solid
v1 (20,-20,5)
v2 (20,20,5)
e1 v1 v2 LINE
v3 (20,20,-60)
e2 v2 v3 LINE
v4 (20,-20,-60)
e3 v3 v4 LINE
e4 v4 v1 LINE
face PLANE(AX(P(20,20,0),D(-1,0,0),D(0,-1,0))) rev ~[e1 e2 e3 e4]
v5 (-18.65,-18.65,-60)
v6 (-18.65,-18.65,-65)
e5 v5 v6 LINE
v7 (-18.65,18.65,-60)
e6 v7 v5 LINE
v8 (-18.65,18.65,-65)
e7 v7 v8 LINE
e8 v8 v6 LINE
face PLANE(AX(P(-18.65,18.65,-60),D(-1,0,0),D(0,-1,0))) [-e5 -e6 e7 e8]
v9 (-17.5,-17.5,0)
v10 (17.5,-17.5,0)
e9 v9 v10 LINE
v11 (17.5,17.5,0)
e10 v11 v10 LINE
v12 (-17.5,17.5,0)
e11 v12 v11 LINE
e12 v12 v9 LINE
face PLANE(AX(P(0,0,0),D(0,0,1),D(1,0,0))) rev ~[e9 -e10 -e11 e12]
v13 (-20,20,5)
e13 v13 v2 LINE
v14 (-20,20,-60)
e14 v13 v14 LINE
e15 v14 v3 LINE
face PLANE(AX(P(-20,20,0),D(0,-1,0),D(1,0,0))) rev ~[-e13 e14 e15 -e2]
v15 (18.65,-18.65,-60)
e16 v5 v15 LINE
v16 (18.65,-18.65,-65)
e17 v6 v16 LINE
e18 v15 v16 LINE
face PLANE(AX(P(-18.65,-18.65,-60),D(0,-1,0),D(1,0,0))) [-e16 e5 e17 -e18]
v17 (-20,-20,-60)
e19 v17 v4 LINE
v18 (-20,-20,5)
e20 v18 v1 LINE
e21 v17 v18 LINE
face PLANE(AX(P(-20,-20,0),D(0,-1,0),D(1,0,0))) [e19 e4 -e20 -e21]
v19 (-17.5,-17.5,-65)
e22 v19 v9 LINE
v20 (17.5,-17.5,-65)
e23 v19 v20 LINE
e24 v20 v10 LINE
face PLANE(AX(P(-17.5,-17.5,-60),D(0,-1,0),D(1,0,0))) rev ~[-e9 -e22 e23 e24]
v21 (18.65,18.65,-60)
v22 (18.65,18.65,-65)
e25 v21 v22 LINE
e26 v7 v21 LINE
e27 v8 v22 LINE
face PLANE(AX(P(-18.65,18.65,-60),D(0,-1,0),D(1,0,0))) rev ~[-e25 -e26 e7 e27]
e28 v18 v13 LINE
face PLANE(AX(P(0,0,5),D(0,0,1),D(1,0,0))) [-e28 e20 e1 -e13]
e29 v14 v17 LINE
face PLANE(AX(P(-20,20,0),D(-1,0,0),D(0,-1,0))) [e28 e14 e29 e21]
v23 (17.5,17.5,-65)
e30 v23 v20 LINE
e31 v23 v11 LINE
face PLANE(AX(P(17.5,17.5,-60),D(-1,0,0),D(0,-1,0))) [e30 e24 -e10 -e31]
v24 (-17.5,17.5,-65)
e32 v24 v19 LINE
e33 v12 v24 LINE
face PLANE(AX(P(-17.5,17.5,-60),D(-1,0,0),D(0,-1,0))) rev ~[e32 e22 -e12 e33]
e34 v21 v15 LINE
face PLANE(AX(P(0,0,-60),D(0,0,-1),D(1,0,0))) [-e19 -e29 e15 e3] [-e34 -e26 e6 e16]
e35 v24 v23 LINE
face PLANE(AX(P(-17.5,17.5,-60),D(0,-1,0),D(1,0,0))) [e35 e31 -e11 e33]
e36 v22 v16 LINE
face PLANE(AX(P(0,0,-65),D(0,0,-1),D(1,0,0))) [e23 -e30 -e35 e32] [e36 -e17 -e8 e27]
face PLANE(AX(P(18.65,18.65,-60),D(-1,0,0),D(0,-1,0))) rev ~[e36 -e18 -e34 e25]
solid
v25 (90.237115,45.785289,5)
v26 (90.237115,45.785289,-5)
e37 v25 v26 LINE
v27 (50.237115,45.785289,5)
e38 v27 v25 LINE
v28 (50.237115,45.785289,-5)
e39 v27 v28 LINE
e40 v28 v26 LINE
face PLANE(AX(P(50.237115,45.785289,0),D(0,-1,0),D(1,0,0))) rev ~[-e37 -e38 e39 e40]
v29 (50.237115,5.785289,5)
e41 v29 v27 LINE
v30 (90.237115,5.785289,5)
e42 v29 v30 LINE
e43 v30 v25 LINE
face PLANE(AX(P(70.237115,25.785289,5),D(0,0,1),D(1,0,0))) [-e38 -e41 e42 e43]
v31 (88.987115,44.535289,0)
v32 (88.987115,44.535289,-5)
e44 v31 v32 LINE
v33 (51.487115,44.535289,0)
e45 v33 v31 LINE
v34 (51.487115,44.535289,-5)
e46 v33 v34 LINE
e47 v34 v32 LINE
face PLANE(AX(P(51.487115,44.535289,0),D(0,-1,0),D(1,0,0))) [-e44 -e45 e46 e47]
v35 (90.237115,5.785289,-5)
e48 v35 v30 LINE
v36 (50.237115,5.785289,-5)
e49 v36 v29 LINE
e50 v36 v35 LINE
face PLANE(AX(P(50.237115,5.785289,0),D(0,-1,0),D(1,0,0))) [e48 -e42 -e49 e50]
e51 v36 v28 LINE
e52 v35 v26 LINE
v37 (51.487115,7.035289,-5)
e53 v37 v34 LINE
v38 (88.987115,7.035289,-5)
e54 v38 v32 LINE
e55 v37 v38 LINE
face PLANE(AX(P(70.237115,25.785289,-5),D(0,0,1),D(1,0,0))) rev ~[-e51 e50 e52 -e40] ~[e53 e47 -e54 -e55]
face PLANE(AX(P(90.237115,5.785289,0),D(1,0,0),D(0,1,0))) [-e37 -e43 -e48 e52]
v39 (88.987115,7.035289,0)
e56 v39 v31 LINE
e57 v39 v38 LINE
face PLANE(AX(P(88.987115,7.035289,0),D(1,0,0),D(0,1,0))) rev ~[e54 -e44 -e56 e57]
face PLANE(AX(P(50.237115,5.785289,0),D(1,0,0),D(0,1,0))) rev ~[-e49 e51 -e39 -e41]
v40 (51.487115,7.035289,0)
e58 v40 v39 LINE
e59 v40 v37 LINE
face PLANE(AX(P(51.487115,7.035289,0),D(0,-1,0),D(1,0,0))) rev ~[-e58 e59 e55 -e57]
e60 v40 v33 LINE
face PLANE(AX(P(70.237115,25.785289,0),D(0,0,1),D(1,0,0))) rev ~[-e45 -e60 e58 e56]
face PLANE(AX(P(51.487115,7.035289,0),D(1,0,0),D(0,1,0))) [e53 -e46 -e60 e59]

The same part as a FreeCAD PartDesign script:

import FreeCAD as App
import Part
import Sketcher
from FreeCAD import Vector

doc = App.newDocument("Part")
params = doc.addObject("Spreadsheet::Sheet", "Params")
for row, (alias, value) in enumerate([
    ("sketch1_width", "40 mm"),
    ("pad1_length", "5 mm"),
    ("sketch2_width", "40 mm"),
    ("sketch2_width2", "35 mm"),
    ("pad2_length", "60 mm"),
    ("sketch3_width", "35 mm"),
    ("sketch3_width2", "37.3 mm"),
    ("pad3_length", "5 mm"),
    ("sketch4_width", "40 mm"),
    ("pad4_length", "5 mm"),
    ("sketch5_width", "40 mm"),
    ("sketch5_width2", "37.5 mm"),
    ("pad5_length", "5 mm"),
], start=1):
    params.set(f"A{row}", alias)
    params.set(f"B{row}", "=" + value)
    params.setAlias(f"B{row}", alias)

body = doc.addObject("PartDesign::Body", "Body")

sketch1 = body.newObject("Sketcher::SketchObject", "Sketch")
sketch1.AttachmentSupport = (doc.getObject("XY_Plane"), [""])
sketch1.MapMode = "FlatFace"
sketch1.addGeometry([
    Part.LineSegment(Vector(-20, 20, 0), Vector(-20, -20, 0)),
    Part.LineSegment(Vector(-20, -20, 0), Vector(20, -20, 0)),
    Part.LineSegment(Vector(20, -20, 0), Vector(20, 20, 0)),
    Part.LineSegment(Vector(20, 20, 0), Vector(-20, 20, 0)),
], False)
sketch1.addConstraint([
    Sketcher.Constraint("Coincident", 0, 2, 1, 1),
    Sketcher.Constraint("Coincident", 1, 2, 2, 1),
    Sketcher.Constraint("Coincident", 2, 2, 3, 1),
    Sketcher.Constraint("Coincident", 3, 2, 0, 1),
    Sketcher.Constraint("Vertical", 0),
    Sketcher.Constraint("Horizontal", 1),
    Sketcher.Constraint("Vertical", 2),
    Sketcher.Constraint("Horizontal", 3),
    Sketcher.Constraint("Symmetric", 0, 2, 2, 2, -1, 1),
    Sketcher.Constraint("Equal", 3, 0),
    Sketcher.Constraint("DistanceX", 1, 1, 1, 2, 40.0),
])
sketch1.setExpression("Constraints[10]", "Params.sketch1_width")
pad1 = body.newObject("PartDesign::Pad", "Pad")
pad1.Profile = sketch1
pad1.setExpression("Length", "Params.pad1_length")

sketch2 = body.newObject("Sketcher::SketchObject", "Sketch001")
sketch2.AttachmentSupport = (doc.getObject("XY_Plane"), [""])
sketch2.MapMode = "FlatFace"
sketch2.addGeometry([
    Part.LineSegment(Vector(-20, -20, 0), Vector(-20, 20, 0)),
    Part.LineSegment(Vector(-20, 20, 0), Vector(20, 20, 0)),
    Part.LineSegment(Vector(20, 20, 0), Vector(20, -20, 0)),
    Part.LineSegment(Vector(20, -20, 0), Vector(-20, -20, 0)),
    Part.LineSegment(Vector(17.5, 17.5, 0), Vector(-17.5, 17.5, 0)),
    Part.LineSegment(Vector(-17.5, 17.5, 0), Vector(-17.5, -17.5, 0)),
    Part.LineSegment(Vector(-17.5, -17.5, 0), Vector(17.5, -17.5, 0)),
    Part.LineSegment(Vector(17.5, -17.5, 0), Vector(17.5, 17.5, 0)),
], False)
sketch2.addConstraint([
    Sketcher.Constraint("Coincident", 0, 2, 1, 1),
    Sketcher.Constraint("Coincident", 1, 2, 2, 1),
    Sketcher.Constraint("Coincident", 2, 2, 3, 1),
    Sketcher.Constraint("Coincident", 3, 2, 0, 1),
    Sketcher.Constraint("Coincident", 4, 2, 5, 1),
    Sketcher.Constraint("Coincident", 5, 2, 6, 1),
    Sketcher.Constraint("Coincident", 6, 2, 7, 1),
    Sketcher.Constraint("Coincident", 7, 2, 4, 1),
    Sketcher.Constraint("Vertical", 0),
    Sketcher.Constraint("Horizontal", 1),
    Sketcher.Constraint("Vertical", 2),
    Sketcher.Constraint("Horizontal", 3),
    Sketcher.Constraint("Horizontal", 4),
    Sketcher.Constraint("Vertical", 5),
    Sketcher.Constraint("Horizontal", 6),
    Sketcher.Constraint("Vertical", 7),
    Sketcher.Constraint("Symmetric", 0, 2, 2, 2, -1, 1),
    Sketcher.Constraint("Symmetric", 4, 2, 6, 2, -1, 1),
    Sketcher.Constraint("Equal", 3, 0),
    Sketcher.Constraint("Equal", 6, 5),
    Sketcher.Constraint("DistanceX", 1, 1, 1, 2, 40.0),
    Sketcher.Constraint("DistanceX", 4, 2, 4, 1, 35.0),
])
sketch2.setExpression("Constraints[20]", "Params.sketch2_width")
sketch2.setExpression("Constraints[21]", "Params.sketch2_width2")
pad2 = body.newObject("PartDesign::Pad", "Pad001")
pad2.Profile = sketch2
pad2.setExpression("Length", "Params.pad2_length")
pad2.Reversed = True

sketch3 = body.newObject("Sketcher::SketchObject", "Sketch002")
sketch3.AttachmentSupport = (doc.getObject("XY_Plane"), [""])
sketch3.MapMode = "FlatFace"
sketch3.AttachmentOffset = App.Placement(Vector(0, 0, -60), App.Rotation())
sketch3.addGeometry([
    Part.LineSegment(Vector(-18.65, -18.65, 0), Vector(-18.65, 18.65, 0)),
    Part.LineSegment(Vector(-18.65, 18.65, 0), Vector(18.65, 18.65, 0)),
    Part.LineSegment(Vector(18.65, 18.65, 0), Vector(18.65, -18.65, 0)),
    Part.LineSegment(Vector(18.65, -18.65, 0), Vector(-18.65, -18.65, 0)),
    Part.LineSegment(Vector(17.5, 17.5, 0), Vector(-17.5, 17.5, 0)),
    Part.LineSegment(Vector(-17.5, 17.5, 0), Vector(-17.5, -17.5, 0)),
    Part.LineSegment(Vector(-17.5, -17.5, 0), Vector(17.5, -17.5, 0)),
    Part.LineSegment(Vector(17.5, -17.5, 0), Vector(17.5, 17.5, 0)),
], False)
sketch3.addConstraint([
    Sketcher.Constraint("Coincident", 0, 2, 1, 1),
    Sketcher.Constraint("Coincident", 1, 2, 2, 1),
    Sketcher.Constraint("Coincident", 2, 2, 3, 1),
    Sketcher.Constraint("Coincident", 3, 2, 0, 1),
    Sketcher.Constraint("Coincident", 4, 2, 5, 1),
    Sketcher.Constraint("Coincident", 5, 2, 6, 1),
    Sketcher.Constraint("Coincident", 6, 2, 7, 1),
    Sketcher.Constraint("Coincident", 7, 2, 4, 1),
    Sketcher.Constraint("Vertical", 0),
    Sketcher.Constraint("Horizontal", 1),
    Sketcher.Constraint("Vertical", 2),
    Sketcher.Constraint("Horizontal", 3),
    Sketcher.Constraint("Horizontal", 4),
    Sketcher.Constraint("Vertical", 5),
    Sketcher.Constraint("Horizontal", 6),
    Sketcher.Constraint("Vertical", 7),
    Sketcher.Constraint("Symmetric", 0, 2, 2, 2, -1, 1),
    Sketcher.Constraint("Symmetric", 4, 2, 6, 2, -1, 1),
    Sketcher.Constraint("Equal", 3, 0),
    Sketcher.Constraint("Equal", 6, 5),
    Sketcher.Constraint("DistanceX", 4, 2, 4, 1, 35.0),
    Sketcher.Constraint("DistanceX", 1, 1, 1, 2, 37.3),
])
sketch3.setExpression("Constraints[20]", "Params.sketch3_width")
sketch3.setExpression("Constraints[21]", "Params.sketch3_width2")
pad3 = body.newObject("PartDesign::Pad", "Pad002")
pad3.Profile = sketch3
pad3.setExpression("Length", "Params.pad3_length")
pad3.Reversed = True
body2 = doc.addObject("PartDesign::Body", "Body001")

sketch4 = body2.newObject("Sketcher::SketchObject", "Sketch003")
sketch4.AttachmentSupport = (doc.getObject("XY_Plane001"), [""])
sketch4.MapMode = "FlatFace"
sketch4.addGeometry([
    Part.LineSegment(Vector(50.237115, 45.785289, 0), Vector(50.237115, 5.785289, 0)),
    Part.LineSegment(Vector(50.237115, 5.785289, 0), Vector(90.237115, 5.785289, 0)),
    Part.LineSegment(Vector(90.237115, 5.785289, 0), Vector(90.237115, 45.785289, 0)),
    Part.LineSegment(Vector(90.237115, 45.785289, 0), Vector(50.237115, 45.785289, 0)),
], False)
sketch4.addConstraint([
    Sketcher.Constraint("Coincident", 0, 2, 1, 1),
    Sketcher.Constraint("Coincident", 1, 2, 2, 1),
    Sketcher.Constraint("Coincident", 2, 2, 3, 1),
    Sketcher.Constraint("Coincident", 3, 2, 0, 1),
    Sketcher.Constraint("Vertical", 0),
    Sketcher.Constraint("Horizontal", 1),
    Sketcher.Constraint("Vertical", 2),
    Sketcher.Constraint("Horizontal", 3),
    Sketcher.Constraint("Equal", 3, 0),
    Sketcher.Constraint("DistanceX", 1, 1, 1, 2, 40.0),
    Sketcher.Constraint("DistanceY", -1, 1, 0, 2, 5.785289),
    Sketcher.Constraint("DistanceX", -1, 1, 0, 2, 50.237115),
])
sketch4.setExpression("Constraints[9]", "Params.sketch4_width")
pad4 = body2.newObject("PartDesign::Pad", "Pad003")
pad4.Profile = sketch4
pad4.setExpression("Length", "Params.pad4_length")

sketch5 = body2.newObject("Sketcher::SketchObject", "Sketch004")
sketch5.AttachmentSupport = (doc.getObject("XY_Plane001"), [""])
sketch5.MapMode = "FlatFace"
sketch5.addGeometry([
    Part.LineSegment(Vector(50.237115, 45.785289, 0), Vector(50.237115, 5.785289, 0)),
    Part.LineSegment(Vector(50.237115, 5.785289, 0), Vector(90.237115, 5.785289, 0)),
    Part.LineSegment(Vector(90.237115, 5.785289, 0), Vector(90.237115, 45.785289, 0)),
    Part.LineSegment(Vector(90.237115, 45.785289, 0), Vector(50.237115, 45.785289, 0)),
    Part.LineSegment(Vector(88.987115, 7.035289, 0), Vector(51.487115, 7.035289, 0)),
    Part.LineSegment(Vector(51.487115, 7.035289, 0), Vector(51.487115, 44.535289, 0)),
    Part.LineSegment(Vector(51.487115, 44.535289, 0), Vector(88.987115, 44.535289, 0)),
    Part.LineSegment(Vector(88.987115, 44.535289, 0), Vector(88.987115, 7.035289, 0)),
], False)
sketch5.addConstraint([
    Sketcher.Constraint("Coincident", 0, 2, 1, 1),
    Sketcher.Constraint("Coincident", 1, 2, 2, 1),
    Sketcher.Constraint("Coincident", 2, 2, 3, 1),
    Sketcher.Constraint("Coincident", 3, 2, 0, 1),
    Sketcher.Constraint("Coincident", 4, 2, 5, 1),
    Sketcher.Constraint("Coincident", 5, 2, 6, 1),
    Sketcher.Constraint("Coincident", 6, 2, 7, 1),
    Sketcher.Constraint("Coincident", 7, 2, 4, 1),
    Sketcher.Constraint("Vertical", 0),
    Sketcher.Constraint("Horizontal", 1),
    Sketcher.Constraint("Vertical", 2),
    Sketcher.Constraint("Horizontal", 3),
    Sketcher.Constraint("Horizontal", 4),
    Sketcher.Constraint("Vertical", 5),
    Sketcher.Constraint("Horizontal", 6),
    Sketcher.Constraint("Vertical", 7),
    Sketcher.Constraint("Equal", 3, 0),
    Sketcher.Constraint("Equal", 6, 5),
    Sketcher.Constraint("DistanceX", 1, 1, 1, 2, 40.0),
    Sketcher.Constraint("DistanceX", 4, 2, 4, 1, 37.5),
    Sketcher.Constraint("DistanceX", 0, 2, 4, 2, 1.25),
    Sketcher.Constraint("DistanceY", 0, 2, 4, 2, 1.25),
    Sketcher.Constraint("DistanceY", -1, 1, 0, 2, 5.785289),
    Sketcher.Constraint("DistanceX", -1, 1, 0, 2, 50.237115),
])
sketch5.setExpression("Constraints[18]", "Params.sketch5_width")
sketch5.setExpression("Constraints[19]", "Params.sketch5_width2")
pad5 = body2.newObject("PartDesign::Pad", "Pad004")
pad5.Profile = sketch5
pad5.setExpression("Length", "Params.pad5_length")
pad5.Reversed = True

doc.recompute()
